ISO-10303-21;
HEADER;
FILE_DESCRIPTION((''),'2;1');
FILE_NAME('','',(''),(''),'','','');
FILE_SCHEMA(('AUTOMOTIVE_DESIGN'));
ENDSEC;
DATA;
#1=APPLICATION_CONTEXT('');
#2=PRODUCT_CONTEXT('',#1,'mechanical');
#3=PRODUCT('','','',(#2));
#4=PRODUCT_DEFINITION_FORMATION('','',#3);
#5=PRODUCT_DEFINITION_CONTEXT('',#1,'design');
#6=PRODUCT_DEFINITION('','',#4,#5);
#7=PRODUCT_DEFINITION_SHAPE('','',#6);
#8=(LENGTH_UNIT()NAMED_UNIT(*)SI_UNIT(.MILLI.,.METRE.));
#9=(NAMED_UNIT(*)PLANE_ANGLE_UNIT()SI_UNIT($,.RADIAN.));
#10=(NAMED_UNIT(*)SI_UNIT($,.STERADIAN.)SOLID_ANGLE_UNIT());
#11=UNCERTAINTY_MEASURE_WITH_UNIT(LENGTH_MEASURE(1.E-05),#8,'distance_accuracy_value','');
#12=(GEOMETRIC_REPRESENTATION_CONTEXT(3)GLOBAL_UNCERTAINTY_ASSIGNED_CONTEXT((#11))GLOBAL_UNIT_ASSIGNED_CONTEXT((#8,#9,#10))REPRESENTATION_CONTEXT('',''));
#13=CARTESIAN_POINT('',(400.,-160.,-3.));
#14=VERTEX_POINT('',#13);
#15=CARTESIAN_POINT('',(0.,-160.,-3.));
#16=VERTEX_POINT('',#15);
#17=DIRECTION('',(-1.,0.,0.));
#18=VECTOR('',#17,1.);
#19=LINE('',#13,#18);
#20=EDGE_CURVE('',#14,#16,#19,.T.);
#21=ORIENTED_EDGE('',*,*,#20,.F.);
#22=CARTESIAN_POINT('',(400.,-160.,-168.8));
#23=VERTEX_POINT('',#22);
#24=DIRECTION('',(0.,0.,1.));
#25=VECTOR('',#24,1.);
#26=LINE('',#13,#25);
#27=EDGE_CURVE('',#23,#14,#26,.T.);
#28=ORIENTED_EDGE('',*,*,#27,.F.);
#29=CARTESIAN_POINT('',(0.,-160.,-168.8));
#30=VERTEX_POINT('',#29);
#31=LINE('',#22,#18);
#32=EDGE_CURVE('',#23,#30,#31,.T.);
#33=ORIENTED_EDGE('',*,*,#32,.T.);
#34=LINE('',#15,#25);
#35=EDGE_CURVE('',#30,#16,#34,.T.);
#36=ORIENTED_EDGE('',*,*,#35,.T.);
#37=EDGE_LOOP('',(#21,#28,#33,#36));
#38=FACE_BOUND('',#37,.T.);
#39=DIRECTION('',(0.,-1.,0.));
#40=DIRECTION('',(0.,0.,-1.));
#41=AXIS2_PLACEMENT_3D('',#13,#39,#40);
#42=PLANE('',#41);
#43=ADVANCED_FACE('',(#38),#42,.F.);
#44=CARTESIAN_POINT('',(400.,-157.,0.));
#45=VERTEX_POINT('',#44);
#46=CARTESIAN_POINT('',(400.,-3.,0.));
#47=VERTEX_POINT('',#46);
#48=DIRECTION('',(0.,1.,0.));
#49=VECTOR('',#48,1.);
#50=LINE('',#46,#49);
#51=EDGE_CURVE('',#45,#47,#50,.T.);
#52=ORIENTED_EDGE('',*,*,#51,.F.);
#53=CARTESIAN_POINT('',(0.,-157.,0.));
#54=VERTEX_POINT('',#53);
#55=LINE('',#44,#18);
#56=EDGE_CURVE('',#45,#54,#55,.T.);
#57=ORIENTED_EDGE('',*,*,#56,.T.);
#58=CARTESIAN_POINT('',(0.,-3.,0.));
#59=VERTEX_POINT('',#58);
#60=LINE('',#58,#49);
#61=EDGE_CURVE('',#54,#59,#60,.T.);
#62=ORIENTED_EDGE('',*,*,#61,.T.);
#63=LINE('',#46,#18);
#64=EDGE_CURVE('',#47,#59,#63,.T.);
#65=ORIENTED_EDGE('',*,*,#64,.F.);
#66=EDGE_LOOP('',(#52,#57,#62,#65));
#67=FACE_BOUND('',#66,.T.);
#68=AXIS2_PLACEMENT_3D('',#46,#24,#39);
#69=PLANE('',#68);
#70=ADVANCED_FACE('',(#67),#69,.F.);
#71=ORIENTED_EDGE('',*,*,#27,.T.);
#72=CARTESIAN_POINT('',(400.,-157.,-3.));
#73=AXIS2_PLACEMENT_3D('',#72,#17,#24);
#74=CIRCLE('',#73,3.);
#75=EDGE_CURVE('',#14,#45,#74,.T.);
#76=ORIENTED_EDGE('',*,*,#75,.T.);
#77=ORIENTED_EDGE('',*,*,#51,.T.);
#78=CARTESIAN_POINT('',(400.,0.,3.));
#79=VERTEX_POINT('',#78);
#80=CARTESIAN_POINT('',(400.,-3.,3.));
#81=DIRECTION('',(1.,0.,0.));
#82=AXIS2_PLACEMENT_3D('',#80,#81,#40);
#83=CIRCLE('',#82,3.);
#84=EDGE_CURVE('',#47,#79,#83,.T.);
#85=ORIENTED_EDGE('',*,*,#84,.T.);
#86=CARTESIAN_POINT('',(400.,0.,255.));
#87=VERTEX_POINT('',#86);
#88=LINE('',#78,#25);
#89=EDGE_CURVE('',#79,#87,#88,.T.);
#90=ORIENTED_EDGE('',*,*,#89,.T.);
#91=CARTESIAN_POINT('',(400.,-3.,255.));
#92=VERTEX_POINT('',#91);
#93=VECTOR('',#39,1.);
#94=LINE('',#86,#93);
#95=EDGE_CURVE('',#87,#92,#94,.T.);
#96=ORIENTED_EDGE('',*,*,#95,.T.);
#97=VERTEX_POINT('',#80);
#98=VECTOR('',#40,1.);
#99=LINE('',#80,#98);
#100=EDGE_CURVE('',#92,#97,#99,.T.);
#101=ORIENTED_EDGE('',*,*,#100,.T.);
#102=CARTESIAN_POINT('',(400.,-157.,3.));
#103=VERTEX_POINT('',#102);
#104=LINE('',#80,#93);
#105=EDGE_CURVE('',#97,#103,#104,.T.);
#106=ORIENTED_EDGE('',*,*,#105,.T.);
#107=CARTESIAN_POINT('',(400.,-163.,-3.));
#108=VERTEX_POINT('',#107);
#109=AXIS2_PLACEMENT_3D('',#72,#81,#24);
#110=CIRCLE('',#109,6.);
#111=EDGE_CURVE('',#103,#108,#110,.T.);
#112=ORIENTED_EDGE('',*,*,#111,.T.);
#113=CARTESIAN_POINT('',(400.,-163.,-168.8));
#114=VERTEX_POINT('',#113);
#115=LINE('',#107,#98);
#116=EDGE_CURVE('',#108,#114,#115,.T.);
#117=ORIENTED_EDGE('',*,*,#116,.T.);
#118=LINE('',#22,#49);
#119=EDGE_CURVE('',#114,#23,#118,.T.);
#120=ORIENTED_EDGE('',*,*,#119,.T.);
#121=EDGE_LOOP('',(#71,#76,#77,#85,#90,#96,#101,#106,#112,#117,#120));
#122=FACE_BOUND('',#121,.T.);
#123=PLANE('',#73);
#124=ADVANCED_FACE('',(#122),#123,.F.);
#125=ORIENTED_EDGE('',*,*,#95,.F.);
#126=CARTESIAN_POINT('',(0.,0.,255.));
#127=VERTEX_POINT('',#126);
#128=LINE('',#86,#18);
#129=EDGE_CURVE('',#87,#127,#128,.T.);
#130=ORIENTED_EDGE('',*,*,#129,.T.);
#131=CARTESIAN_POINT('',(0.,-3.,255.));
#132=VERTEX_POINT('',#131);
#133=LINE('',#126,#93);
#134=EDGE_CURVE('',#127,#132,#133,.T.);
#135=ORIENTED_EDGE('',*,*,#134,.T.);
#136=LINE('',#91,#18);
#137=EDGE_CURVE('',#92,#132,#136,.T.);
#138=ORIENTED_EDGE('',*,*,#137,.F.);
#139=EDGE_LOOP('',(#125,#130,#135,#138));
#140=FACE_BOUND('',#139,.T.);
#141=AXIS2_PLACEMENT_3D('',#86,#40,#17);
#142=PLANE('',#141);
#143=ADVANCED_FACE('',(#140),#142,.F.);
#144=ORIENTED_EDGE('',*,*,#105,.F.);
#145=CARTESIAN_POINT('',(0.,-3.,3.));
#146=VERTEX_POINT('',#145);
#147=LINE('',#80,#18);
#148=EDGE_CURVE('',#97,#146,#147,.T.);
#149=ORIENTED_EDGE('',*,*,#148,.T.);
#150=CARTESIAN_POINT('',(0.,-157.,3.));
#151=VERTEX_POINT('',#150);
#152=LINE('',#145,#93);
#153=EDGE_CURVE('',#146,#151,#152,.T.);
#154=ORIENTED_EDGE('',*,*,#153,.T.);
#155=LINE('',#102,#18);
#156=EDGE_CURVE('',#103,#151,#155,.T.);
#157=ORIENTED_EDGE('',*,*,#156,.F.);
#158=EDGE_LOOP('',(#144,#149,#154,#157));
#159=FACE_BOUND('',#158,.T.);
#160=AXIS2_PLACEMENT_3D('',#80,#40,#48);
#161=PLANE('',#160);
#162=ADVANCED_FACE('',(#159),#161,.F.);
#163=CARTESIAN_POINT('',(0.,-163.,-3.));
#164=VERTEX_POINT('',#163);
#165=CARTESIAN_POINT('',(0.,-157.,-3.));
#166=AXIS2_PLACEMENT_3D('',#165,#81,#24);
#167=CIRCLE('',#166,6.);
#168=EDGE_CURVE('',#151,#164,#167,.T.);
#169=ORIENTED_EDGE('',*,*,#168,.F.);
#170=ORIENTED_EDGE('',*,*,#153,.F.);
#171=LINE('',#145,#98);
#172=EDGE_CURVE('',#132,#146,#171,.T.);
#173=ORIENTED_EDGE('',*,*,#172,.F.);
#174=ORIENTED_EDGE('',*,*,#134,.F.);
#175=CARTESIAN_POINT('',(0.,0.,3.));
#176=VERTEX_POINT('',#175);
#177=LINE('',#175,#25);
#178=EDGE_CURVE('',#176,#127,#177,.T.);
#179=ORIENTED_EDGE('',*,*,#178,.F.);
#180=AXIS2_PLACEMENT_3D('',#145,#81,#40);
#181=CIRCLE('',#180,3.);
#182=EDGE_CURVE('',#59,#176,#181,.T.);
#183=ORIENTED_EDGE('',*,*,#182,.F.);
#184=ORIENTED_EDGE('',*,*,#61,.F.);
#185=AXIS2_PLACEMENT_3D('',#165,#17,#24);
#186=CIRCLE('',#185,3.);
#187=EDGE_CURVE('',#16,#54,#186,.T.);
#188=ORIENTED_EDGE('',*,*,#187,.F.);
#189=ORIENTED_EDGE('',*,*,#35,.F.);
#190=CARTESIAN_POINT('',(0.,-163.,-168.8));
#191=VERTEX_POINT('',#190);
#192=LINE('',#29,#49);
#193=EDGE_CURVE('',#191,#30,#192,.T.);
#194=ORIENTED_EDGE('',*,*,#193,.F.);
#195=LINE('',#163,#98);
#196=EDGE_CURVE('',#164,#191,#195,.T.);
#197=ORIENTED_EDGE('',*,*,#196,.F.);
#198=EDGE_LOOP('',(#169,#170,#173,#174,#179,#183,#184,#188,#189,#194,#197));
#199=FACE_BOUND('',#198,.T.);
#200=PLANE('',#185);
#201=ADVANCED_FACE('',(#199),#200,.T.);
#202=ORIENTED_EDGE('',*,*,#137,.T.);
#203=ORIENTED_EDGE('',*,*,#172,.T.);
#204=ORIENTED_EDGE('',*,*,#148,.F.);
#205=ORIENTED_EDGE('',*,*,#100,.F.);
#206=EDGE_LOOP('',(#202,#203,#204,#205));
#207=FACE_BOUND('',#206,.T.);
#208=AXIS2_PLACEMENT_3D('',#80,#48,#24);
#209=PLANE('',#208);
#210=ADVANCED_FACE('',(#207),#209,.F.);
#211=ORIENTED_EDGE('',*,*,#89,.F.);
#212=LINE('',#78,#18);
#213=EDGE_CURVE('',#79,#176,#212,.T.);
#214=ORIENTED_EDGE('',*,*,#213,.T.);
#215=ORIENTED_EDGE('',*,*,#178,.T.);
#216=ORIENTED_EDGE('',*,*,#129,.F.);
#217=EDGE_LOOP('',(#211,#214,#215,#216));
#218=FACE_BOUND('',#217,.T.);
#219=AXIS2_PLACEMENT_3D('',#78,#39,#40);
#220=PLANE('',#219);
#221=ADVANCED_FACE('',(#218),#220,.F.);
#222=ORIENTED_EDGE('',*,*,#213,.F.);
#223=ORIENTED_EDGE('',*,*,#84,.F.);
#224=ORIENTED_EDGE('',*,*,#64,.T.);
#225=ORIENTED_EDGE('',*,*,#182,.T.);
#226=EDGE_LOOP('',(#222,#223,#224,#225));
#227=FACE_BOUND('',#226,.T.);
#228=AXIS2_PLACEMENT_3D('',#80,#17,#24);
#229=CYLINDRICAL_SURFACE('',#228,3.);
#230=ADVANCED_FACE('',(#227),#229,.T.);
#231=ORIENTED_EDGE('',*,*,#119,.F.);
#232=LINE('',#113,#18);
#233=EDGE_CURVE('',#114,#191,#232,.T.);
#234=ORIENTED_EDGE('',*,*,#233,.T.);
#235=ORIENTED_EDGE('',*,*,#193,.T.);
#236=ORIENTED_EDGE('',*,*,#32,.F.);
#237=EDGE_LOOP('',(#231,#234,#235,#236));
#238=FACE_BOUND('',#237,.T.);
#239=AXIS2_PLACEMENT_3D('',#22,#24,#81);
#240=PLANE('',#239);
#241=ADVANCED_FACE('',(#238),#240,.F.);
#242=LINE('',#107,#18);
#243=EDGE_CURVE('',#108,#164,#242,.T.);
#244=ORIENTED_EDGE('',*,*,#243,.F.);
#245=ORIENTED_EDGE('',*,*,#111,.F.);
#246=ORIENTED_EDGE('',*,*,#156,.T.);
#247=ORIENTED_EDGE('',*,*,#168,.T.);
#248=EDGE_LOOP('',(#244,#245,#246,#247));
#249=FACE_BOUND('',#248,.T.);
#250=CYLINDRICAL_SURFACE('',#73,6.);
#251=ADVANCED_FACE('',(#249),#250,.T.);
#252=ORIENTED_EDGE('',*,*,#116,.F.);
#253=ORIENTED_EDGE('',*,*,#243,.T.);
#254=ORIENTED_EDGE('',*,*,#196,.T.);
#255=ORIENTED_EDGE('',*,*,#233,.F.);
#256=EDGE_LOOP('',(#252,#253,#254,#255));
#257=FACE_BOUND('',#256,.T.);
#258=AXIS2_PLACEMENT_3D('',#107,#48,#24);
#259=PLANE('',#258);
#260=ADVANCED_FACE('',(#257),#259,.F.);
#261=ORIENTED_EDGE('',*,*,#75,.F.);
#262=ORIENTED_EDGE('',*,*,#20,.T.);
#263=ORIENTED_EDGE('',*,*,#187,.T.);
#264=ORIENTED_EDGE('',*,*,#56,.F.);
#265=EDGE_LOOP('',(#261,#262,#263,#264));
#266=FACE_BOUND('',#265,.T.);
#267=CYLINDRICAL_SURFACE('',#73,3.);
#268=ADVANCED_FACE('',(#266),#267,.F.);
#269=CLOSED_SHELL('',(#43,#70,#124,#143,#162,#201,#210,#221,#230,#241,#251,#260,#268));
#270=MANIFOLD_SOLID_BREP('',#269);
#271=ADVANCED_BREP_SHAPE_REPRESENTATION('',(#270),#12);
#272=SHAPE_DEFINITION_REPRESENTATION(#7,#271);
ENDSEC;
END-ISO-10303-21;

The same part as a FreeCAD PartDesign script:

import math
import FreeCAD as App
import Part
import Sketcher
from FreeCAD import Vector
Q = App.Units.Quantity

doc = App.newDocument("Part")
params = doc.addObject("Spreadsheet::Sheet", "Params")
for row, (alias, value) in enumerate([
    ("sketch1_radius", "6 mm"),
    ("sketch1_width", "154 mm"),
    ("sketch1_height", "252 mm"),
    ("sketch1_height2", "165.8 mm"),
    ("pad1_length", "400 mm"),
], start=1):
    params.set(f"A{row}", alias)
    params.set(f"B{row}", "=" + value)
    params.setAlias(f"B{row}", alias)

body = doc.addObject("PartDesign::Body", "Body")

# Sketch on YZ plane
sketch1 = body.newObject("Sketcher::SketchObject", "Sketch")
sketch1.AttachmentSupport = (doc.getObject("YZ_Plane"), [""])
sketch1.MapMode = "FlatFace"
sketch1.addGeometry(Part.LineSegment(Vector(0, 3, 0), Vector(0, 255, 0)), False)
sketch1.addGeometry(Part.LineSegment(Vector(0, 255, 0), Vector(-3, 255, 0)), False)
sketch1.addGeometry(Part.LineSegment(Vector(-3, 255, 0), Vector(-3, 3, 0)), False)
sketch1.addGeometry(Part.LineSegment(Vector(-3, 3, 0), Vector(-157, 3, 0)), False)
sketch1.addGeometry(Part.ArcOfCircle(Part.Circle(Vector(-157, -3, 0), Vector(0, 0, 1), 6), math.radians(90), math.radians(180)), False)
sketch1.addGeometry(Part.LineSegment(Vector(-163, -3, 0), Vector(-163, -168.8, 0)), False)
sketch1.addGeometry(Part.LineSegment(Vector(-163, -168.8, 0), Vector(-160, -168.8, 0)), False)
sketch1.addGeometry(Part.LineSegment(Vector(-160, -168.8, 0), Vector(-160, -3, 0)), False)
sketch1.addGeometry(Part.ArcOfCircle(Part.Circle(Vector(-157, -3, 0), Vector(0, 0, 1), 3), math.radians(90), math.radians(180)), False)
sketch1.addGeometry(Part.LineSegment(Vector(-157, 0, 0), Vector(-3, 0, 0)), False)
sketch1.addGeometry(Part.ArcOfCircle(Part.Circle(Vector(-3, 3, 0), Vector(0, 0, 1), 3), math.radians(-90), math.radians(0)), False)
sketch1.addConstraint(Sketcher.Constraint("Coincident", 0, 2, 1, 1))
sketch1.addConstraint(Sketcher.Constraint("Coincident", 1, 2, 2, 1))
sketch1.addConstraint(Sketcher.Constraint("Coincident", 2, 2, 3, 1))
sketch1.addConstraint(Sketcher.Constraint("Tangent", 3, 2, 4, 1))
sketch1.addConstraint(Sketcher.Constraint("Tangent", 4, 2, 5, 1))
sketch1.addConstraint(Sketcher.Constraint("Coincident", 5, 2, 6, 1))
sketch1.addConstraint(Sketcher.Constraint("Coincident", 6, 2, 7, 1))
sketch1.addConstraint(Sketcher.Constraint("Tangent", 7, 2, 8, 2))
sketch1.addConstraint(Sketcher.Constraint("Tangent", 8, 1, 9, 1))
sketch1.addConstraint(Sketcher.Constraint("Tangent", 9, 2, 10, 1))
sketch1.addConstraint(Sketcher.Constraint("Tangent", 10, 2, 0, 1))
sketch1.addConstraint(Sketcher.Constraint("Vertical", 0))
sketch1.addConstraint(Sketcher.Constraint("Horizontal", 1))
sketch1.addConstraint(Sketcher.Constraint("Vertical", 2))
sketch1.addConstraint(Sketcher.Constraint("Horizontal", 3))
sketch1.addConstraint(Sketcher.Constraint("Vertical", 5))
sketch1.addConstraint(Sketcher.Constraint("Horizontal", 6))
sketch1.addConstraint(Sketcher.Constraint("Vertical", 7))
sketch1.addConstraint(Sketcher.Constraint("Horizontal", 9))
sketch1.addConstraint(Sketcher.Constraint("Coincident", 8, 3, 4, 3))
sketch1.addConstraint(Sketcher.Constraint("Coincident", 2, 2, 10, 3))
sketch1.addConstraint(Sketcher.Constraint("Equal", 8, 10))
sketch1.addConstraint(Sketcher.Constraint("PointOnObject", 0, 2, -2))
sketch1.addConstraint(Sketcher.Constraint("PointOnObject", 8, 1, -1))
sketch1.addConstraint(Sketcher.Constraint("Radius", 4, Q("6 mm")))
sketch1.addConstraint(Sketcher.Constraint("DistanceX", 3, 2, 3, 1, Q("154 mm")))
sketch1.addConstraint(Sketcher.Constraint("DistanceY", 0, 1, 0, 2, Q("252 mm")))
sketch1.addConstraint(Sketcher.Constraint("DistanceY", 5, 2, 5, 1, Q("165.8 mm")))
sketch1.setExpression("Constraints[24]", "Params.sketch1_radius")
sketch1.setExpression("Constraints[25]", "Params.sketch1_width")
sketch1.setExpression("Constraints[26]", "Params.sketch1_height")
sketch1.setExpression("Constraints[27]", "Params.sketch1_height2")
pad1 = body.newObject("PartDesign::Pad", "Pad")
pad1.Profile = sketch1
pad1.setExpression("Length", "Params.pad1_length")

doc.recompute()
